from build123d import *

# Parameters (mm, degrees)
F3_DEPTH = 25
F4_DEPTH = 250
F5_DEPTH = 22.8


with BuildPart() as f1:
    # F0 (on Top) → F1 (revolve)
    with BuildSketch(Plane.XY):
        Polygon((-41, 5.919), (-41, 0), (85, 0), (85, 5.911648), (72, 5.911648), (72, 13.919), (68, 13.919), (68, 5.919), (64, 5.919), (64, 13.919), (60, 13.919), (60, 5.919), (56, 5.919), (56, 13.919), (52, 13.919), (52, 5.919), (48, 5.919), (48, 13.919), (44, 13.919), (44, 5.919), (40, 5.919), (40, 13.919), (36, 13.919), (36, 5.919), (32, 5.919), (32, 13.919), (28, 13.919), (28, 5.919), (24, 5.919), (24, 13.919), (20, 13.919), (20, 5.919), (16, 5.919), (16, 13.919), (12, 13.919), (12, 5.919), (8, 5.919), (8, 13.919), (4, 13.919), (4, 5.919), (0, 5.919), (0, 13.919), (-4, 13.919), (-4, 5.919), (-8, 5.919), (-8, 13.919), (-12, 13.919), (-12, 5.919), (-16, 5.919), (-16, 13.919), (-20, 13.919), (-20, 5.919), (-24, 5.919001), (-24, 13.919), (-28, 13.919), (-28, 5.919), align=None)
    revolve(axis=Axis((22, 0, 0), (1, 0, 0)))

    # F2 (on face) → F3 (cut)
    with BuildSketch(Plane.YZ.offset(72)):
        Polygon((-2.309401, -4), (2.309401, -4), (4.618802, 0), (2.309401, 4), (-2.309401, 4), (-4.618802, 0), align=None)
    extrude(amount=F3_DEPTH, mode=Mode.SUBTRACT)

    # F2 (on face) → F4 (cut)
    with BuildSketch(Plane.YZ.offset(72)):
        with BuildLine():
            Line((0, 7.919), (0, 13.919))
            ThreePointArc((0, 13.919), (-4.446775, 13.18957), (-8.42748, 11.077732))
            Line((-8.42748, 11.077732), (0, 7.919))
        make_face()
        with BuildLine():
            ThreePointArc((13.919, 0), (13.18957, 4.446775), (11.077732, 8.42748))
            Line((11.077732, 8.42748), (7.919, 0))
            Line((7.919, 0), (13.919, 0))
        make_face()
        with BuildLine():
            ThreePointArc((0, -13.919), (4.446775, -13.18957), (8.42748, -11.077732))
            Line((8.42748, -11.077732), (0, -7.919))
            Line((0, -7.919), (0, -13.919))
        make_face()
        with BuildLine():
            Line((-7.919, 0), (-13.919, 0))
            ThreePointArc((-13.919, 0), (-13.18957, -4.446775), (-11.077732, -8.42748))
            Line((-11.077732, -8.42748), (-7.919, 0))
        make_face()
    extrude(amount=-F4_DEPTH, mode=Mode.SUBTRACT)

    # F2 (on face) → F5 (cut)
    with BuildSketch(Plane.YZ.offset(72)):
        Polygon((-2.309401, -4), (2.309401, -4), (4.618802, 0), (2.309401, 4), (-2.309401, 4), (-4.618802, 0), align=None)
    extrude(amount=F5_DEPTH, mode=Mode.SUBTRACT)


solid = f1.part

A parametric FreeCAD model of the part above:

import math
import FreeCAD as App
import Part
import Sketcher
from FreeCAD import Vector
Q = App.Units.Quantity


def add_polygon(sketch, points):
    """Adds a closed chain of lines whose ends are joined by coincident constraints."""
    first, n = sketch.GeometryCount, len(points)
    for a, b in zip(points, points[1:] + points[:1]):
        sketch.addGeometry(Part.LineSegment(App.Vector(*a, 0), App.Vector(*b, 0)), False)
    for i in range(n):
        sketch.addConstraint(Sketcher.Constraint("Coincident", first + i, 2, first + (i + 1) % n, 1))

doc = App.newDocument("Part")
body = doc.addObject("PartDesign::Body", "Body")

# Sketch on XY plane
sketch1 = body.newObject("Sketcher::SketchObject", "Sketch")
sketch1.AttachmentSupport = (doc.getObject("XY_Plane"), [""])
sketch1.MapMode = "FlatFace"
add_polygon(sketch1, [(-41, 5.919), (-41, 0), (85, 0), (85, 5.911648), (72, 5.911648), (72, 13.919), (68, 13.919), (68, 5.919), (64, 5.919), (64, 13.919), (60, 13.919), (60, 5.919), (56, 5.919), (56, 13.919), (52, 13.919), (52, 5.919), (48, 5.919), (48, 13.919), (44, 13.919), (44, 5.919), (40, 5.919), (40, 13.919), (36, 13.919), (36, 5.919), (32, 5.919), (32, 13.919), (28, 13.919), (28, 5.919), (24, 5.919), (24, 13.919), (20, 13.919), (20, 5.919), (16, 5.919), (16, 13.919), (12, 13.919), (12, 5.919), (8, 5.919), (8, 13.919), (4, 13.919), (4, 5.919), (0, 5.919), (0, 13.919), (-4, 13.919), (-4, 5.919), (-8, 5.919), (-8, 13.919), (-12, 13.919), (-12, 5.919), (-16, 5.919), (-16, 13.919), (-20, 13.919), (-20, 5.919), (-24, 5.919001), (-24, 13.919), (-28, 13.919), (-28, 5.919)])  # lines 0-55
sketch1.addConstraint([
    Sketcher.Constraint("Vertical", 0),
    Sketcher.Constraint("Horizontal", 1),
    Sketcher.Constraint("Vertical", 2),
    Sketcher.Constraint("Horizontal", 3),
    Sketcher.Constraint("Vertical", 4),
    Sketcher.Constraint("Horizontal", 5),
    Sketcher.Constraint("Vertical", 6),
    Sketcher.Constraint("Horizontal", 7),
    Sketcher.Constraint("Vertical", 8),
    Sketcher.Constraint("Horizontal", 9),
    Sketcher.Constraint("Vertical", 10),
    Sketcher.Constraint("Horizontal", 11),
    Sketcher.Constraint("Vertical", 12),
    Sketcher.Constraint("Horizontal", 13),
    Sketcher.Constraint("Vertical", 14),
    Sketcher.Constraint("Horizontal", 15),
    Sketcher.Constraint("Vertical", 16),
    Sketcher.Constraint("Horizontal", 17),
    Sketcher.Constraint("Vertical", 18),
    Sketcher.Constraint("Horizontal", 19),
    Sketcher.Constraint("Vertical", 20),
    Sketcher.Constraint("Horizontal", 21),
    Sketcher.Constraint("Vertical", 22),
    Sketcher.Constraint("Horizontal", 23),
    Sketcher.Constraint("Vertical", 24),
    Sketcher.Constraint("Horizontal", 25),
    Sketcher.Constraint("Vertical", 26),
    Sketcher.Constraint("Horizontal", 27),
    Sketcher.Constraint("Vertical", 28),
    Sketcher.Constraint("Horizontal", 29),
    Sketcher.Constraint("Vertical", 30),
    Sketcher.Constraint("Horizontal", 31),
    Sketcher.Constraint("Vertical", 32),
    Sketcher.Constraint("Horizontal", 33),
    Sketcher.Constraint("Vertical", 34),
    Sketcher.Constraint("Horizontal", 35),
    Sketcher.Constraint("Vertical", 36),
    Sketcher.Constraint("Horizontal", 37),
    Sketcher.Constraint("Vertical", 38),
    Sketcher.Constraint("Horizontal", 39),
    Sketcher.Constraint("Vertical", 40),
    Sketcher.Constraint("Horizontal", 41),
    Sketcher.Constraint("Vertical", 42),
    Sketcher.Constraint("Horizontal", 43),
    Sketcher.Constraint("Vertical", 44),
    Sketcher.Constraint("Horizontal", 45),
    Sketcher.Constraint("Vertical", 46),
    Sketcher.Constraint("Horizontal", 47),
    Sketcher.Constraint("Vertical", 48),
    Sketcher.Constraint("Horizontal", 49),
    Sketcher.Constraint("Vertical", 50),
    Sketcher.Constraint("Horizontal", 51),
    Sketcher.Constraint("Vertical", 52),
    Sketcher.Constraint("Horizontal", 53),
    Sketcher.Constraint("Vertical", 54),
    Sketcher.Constraint("Horizontal", 55),
    Sketcher.Constraint("Symmetric", 37, 2, 41, 2, -2),
    Sketcher.Constraint("Symmetric", 35, 2, 43, 2, -2),
    Sketcher.Constraint("Symmetric", 33, 2, 45, 2, -2),
    Sketcher.Constraint("Symmetric", 31, 2, 47, 2, -2),
    Sketcher.Constraint("Symmetric", 29, 2, 49, 2, -2),
    Sketcher.Constraint("Symmetric", 27, 2, 51, 2, -2),
    Sketcher.Constraint("Symmetric", 25, 2, 53, 2, -2),
    Sketcher.Constraint("PointOnObject", 0, 2, -1),
    Sketcher.Constraint("PointOnObject", 39, 2, -2),
    Sketcher.Constraint("Horizontal", 5, 2, 8, 2),
    Sketcher.Constraint("Horizontal", 7, 2, 10, 2),
    Sketcher.Constraint("Horizontal", 9, 2, 12, 2),
    Sketcher.Constraint("Horizontal", 11, 2, 14, 2),
    Sketcher.Constraint("Horizontal", 13, 2, 16, 2),
    Sketcher.Constraint("Horizontal", 15, 2, 18, 2),
    Sketcher.Constraint("Horizontal", 17, 2, 20, 2),
    Sketcher.Constraint("Horizontal", 19, 2, 22, 2),
    Sketcher.Constraint("Horizontal", 21, 2, 24, 2),
    Sketcher.Constraint("Horizontal", 23, 2, 26, 2),
    Sketcher.Constraint("Horizontal", 25, 2, 28, 2),
    Sketcher.Constraint("Horizontal", 27, 2, 30, 2),
    Sketcher.Constraint("Horizontal", 29, 2, 32, 2),
    Sketcher.Constraint("Horizontal", 31, 2, 34, 2),
    Sketcher.Constraint("Horizontal", 33, 2, 36, 2),
    Sketcher.Constraint("Horizontal", 35, 2, 38, 2),
    Sketcher.Constraint("Horizontal", 51, 2, 54, 2),
    Sketcher.Constraint("Equal", 5, 7),
    Sketcher.Constraint("Equal", 7, 9),
    Sketcher.Constraint("Equal", 9, 11),
    Sketcher.Constraint("Equal", 11, 13),
    Sketcher.Constraint("Equal", 13, 15),
    Sketcher.Constraint("Equal", 15, 17),
    Sketcher.Constraint("Equal", 17, 19),
    Sketcher.Constraint("Equal", 19, 21),
    Sketcher.Constraint("Equal", 21, 23),
    Sketcher.Constraint("Equal", 23, 25),
    Sketcher.Constraint("Equal", 25, 27),
    Sketcher.Constraint("Equal", 27, 29),
    Sketcher.Constraint("Equal", 29, 31),
    Sketcher.Constraint("Equal", 31, 33),
    Sketcher.Constraint("Equal", 33, 35),
    Sketcher.Constraint("Equal", 35, 37),
    Sketcher.Constraint("Equal", 37, 39),
    Sketcher.Constraint("Equal", 3, 55),
    Sketcher.Constraint("DistanceX", 1, 1, 1, 2, 126.0),
    Sketcher.Constraint("DistanceX", 3, 2, 3, 1, 13.0),
    Sketcher.Constraint("DistanceY", 6, 2, 6, 1, 8.0),
    Sketcher.Constraint("DistanceY", 0, 2, 0, 1, 5.919),
    Sketcher.Constraint("DistanceY", 2, 1, 2, 2, 5.911648),
])
revolution = body.newObject("PartDesign::Revolution", "Revolution")
revolution.Profile = sketch1
revolution.ReferenceAxis = (sketch1, ["H_Axis"])
revolution.Angle = 360

# Sketch on YZ plane
sketch2 = body.newObject("Sketcher::SketchObject", "Sketch001")
sketch2.AttachmentSupport = (doc.getObject("YZ_Plane"), [""])
sketch2.MapMode = "FlatFace"
sketch2.AttachmentOffset = App.Placement(Vector(0, 0, 72), App.Rotation())
add_polygon(sketch2, [(-2.309401, -4), (2.309401, -4), (4.618802, 0), (2.309401, 4), (-2.309401, 4), (-4.618802, 0)])  # lines 0-5
sketch2.addConstraint([
    Sketcher.Constraint("Horizontal", 0),
    Sketcher.Constraint("Horizontal", 3),
    Sketcher.Constraint("Symmetric", 0, 2, 3, 2, -1, 1),
    Sketcher.Constraint("Symmetric", 1, 2, 4, 2, -1, 1),
    Sketcher.Constraint("PointOnObject", 1, 2, -1),
    Sketcher.Constraint("Parallel", 2, 5),
    Sketcher.Constraint("Vertical", 0, 2, 2, 2),
    Sketcher.Constraint("Angle", 1, Q("60.000001 deg")),
    Sketcher.Constraint("DistanceY", 0, 2, -1, 1, 4.0),
    Sketcher.Constraint("DistanceX", 0, 1, 0, 2, 4.618802),
])
pocket1 = body.newObject("PartDesign::Pocket", "Pocket")
pocket1.Profile = sketch2
pocket1.Length = 25
pocket1.Reversed = True

# Sketch on YZ plane
sketch3 = body.newObject("Sketcher::SketchObject", "Sketch002")
sketch3.AttachmentSupport = (doc.getObject("YZ_Plane"), [""])
sketch3.MapMode = "FlatFace"
sketch3.AttachmentOffset = App.Placement(Vector(0, 0, 72), App.Rotation())
sketch3.addGeometry([
    Part.LineSegment(Vector(0, 7.919, 0), Vector(0, 13.919, 0)),  # 0
    Part.ArcOfCircle(Part.Circle(Vector(-0.000001, 0.000001, 0), Vector(0, 0, 1), 13.918999), math.radians(89.999998), math.radians(127.262376)),  # 1
    Part.LineSegment(Vector(-8.42748, 11.077732, 0), Vector(0, 7.919, 0)),  # 2
    Part.ArcOfCircle(Part.Circle(Vector(0.000001, 0.000001, 0), Vector(0, 0, 1), 13.918999), math.radians(-0.000002), math.radians(37.262376)),  # 3
    Part.LineSegment(Vector(11.077732, 8.42748, 0), Vector(7.919, 0, 0)),  # 4
    Part.LineSegment(Vector(7.919, 0, 0), Vector(13.919, 0, 0)),  # 5
    Part.ArcOfCircle(Part.Circle(Vector(0.000001, -0.000001, 0), Vector(0, 0, 1), 13.918999), math.radians(-90.000002), math.radians(-52.737624)),  # 6
    Part.LineSegment(Vector(8.42748, -11.077732, 0), Vector(0, -7.919, 0)),  # 7
    Part.LineSegment(Vector(0, -7.919, 0), Vector(0, -13.919, 0)),  # 8
    Part.LineSegment(Vector(-7.919, 0, 0), Vector(-13.919, 0, 0)),  # 9
    Part.ArcOfCircle(Part.Circle(Vector(-0.000001, -0.000001, 0), Vector(0, 0, 1), 13.918999), math.radians(179.999998), math.radians(217.262376)),  # 10
    Part.LineSegment(Vector(-11.077732, -8.42748, 0), Vector(-7.919, 0, 0)),  # 11
], False)
sketch3.addConstraint([
    Sketcher.Constraint("Coincident", 0, 2, 1, 1),
    Sketcher.Constraint("Coincident", 1, 2, 2, 1),
    Sketcher.Constraint("Coincident", 2, 2, 0, 1),
    Sketcher.Constraint("Coincident", 3, 2, 4, 1),
    Sketcher.Constraint("Coincident", 4, 2, 5, 1),
    Sketcher.Constraint("Coincident", 5, 2, 3, 1),
    Sketcher.Constraint("Coincident", 6, 2, 7, 1),
    Sketcher.Constraint("Coincident", 7, 2, 8, 1),
    Sketcher.Constraint("Coincident", 8, 2, 6, 1),
    Sketcher.Constraint("Coincident", 9, 2, 10, 1),
    Sketcher.Constraint("Coincident", 10, 2, 11, 1),
    Sketcher.Constraint("Coincident", 11, 2, 9, 1),
    Sketcher.Constraint("Vertical", 0),
    Sketcher.Constraint("Horizontal", 5),
    Sketcher.Constraint("Vertical", 8),
    Sketcher.Constraint("Horizontal", 9),
    Sketcher.Constraint("Coincident", 1, 3, -1, 1),
    Sketcher.Constraint("Coincident", 3, 3, -1, 1),
    Sketcher.Constraint("Coincident", 6, 3, -1, 1),
    Sketcher.Constraint("Coincident", 10, 3, -1, 1),
    Sketcher.Constraint("Equal", 1, 3),
    Sketcher.Constraint("Equal", 3, 6),
    Sketcher.Constraint("Equal", 6, 10),
    Sketcher.Constraint("Symmetric", 2, 2, 7, 2, -1, 1),
    Sketcher.Constraint("Symmetric", 4, 2, 11, 2, -1, 1),
    Sketcher.Constraint("PointOnObject", 0, 2, -2),
    Sketcher.Constraint("PointOnObject", 4, 2, -1),
    Sketcher.Constraint("Perpendicular", 2, 4),
    Sketcher.Constraint("Perpendicular", 4, 7),
    Sketcher.Constraint("Perpendicular", 7, 11),
    Sketcher.Constraint("Equal", 9, 0),
    Sketcher.Constraint("DistanceX", 5, 1, 5, 2, 6.0),
    Sketcher.Constraint("Distance", 2, 9.0),
    Sketcher.Constraint("Radius", 1, 13.918999),
])
pocket2 = body.newObject("PartDesign::Pocket", "Pocket001")
pocket2.Profile = sketch3
pocket2.Length = 250

# Sketch on YZ plane
sketch4 = body.newObject("Sketcher::SketchObject", "Sketch003")
sketch4.AttachmentSupport = (doc.getObject("YZ_Plane"), [""])
sketch4.MapMode = "FlatFace"
sketch4.AttachmentOffset = App.Placement(Vector(0, 0, 72), App.Rotation())
add_polygon(sketch4, [(-2.309401, -4), (2.309401, -4), (4.618802, 0), (2.309401, 4), (-2.309401, 4), (-4.618802, 0)])  # lines 0-5
sketch4.addConstraint([
    Sketcher.Constraint("Horizontal", 0),
    Sketcher.Constraint("Horizontal", 3),
    Sketcher.Constraint("Symmetric", 0, 2, 3, 2, -1, 1),
    Sketcher.Constraint("Symmetric", 1, 2, 4, 2, -1, 1),
    Sketcher.Constraint("PointOnObject", 1, 2, -1),
    Sketcher.Constraint("Parallel", 2, 5),
    Sketcher.Constraint("Vertical", 0, 2, 2, 2),
    Sketcher.Constraint("Angle", 1, Q("60.000001 deg")),
    Sketcher.Constraint("DistanceY", 0, 2, -1, 1, 4.0),
    Sketcher.Constraint("DistanceX", 0, 1, 0, 2, 4.618802),
])
pocket3 = body.newObject("PartDesign::Pocket", "Pocket002")
pocket3.Profile = sketch4
pocket3.Length = 22.8
pocket3.Reversed = True

doc.recompute()
